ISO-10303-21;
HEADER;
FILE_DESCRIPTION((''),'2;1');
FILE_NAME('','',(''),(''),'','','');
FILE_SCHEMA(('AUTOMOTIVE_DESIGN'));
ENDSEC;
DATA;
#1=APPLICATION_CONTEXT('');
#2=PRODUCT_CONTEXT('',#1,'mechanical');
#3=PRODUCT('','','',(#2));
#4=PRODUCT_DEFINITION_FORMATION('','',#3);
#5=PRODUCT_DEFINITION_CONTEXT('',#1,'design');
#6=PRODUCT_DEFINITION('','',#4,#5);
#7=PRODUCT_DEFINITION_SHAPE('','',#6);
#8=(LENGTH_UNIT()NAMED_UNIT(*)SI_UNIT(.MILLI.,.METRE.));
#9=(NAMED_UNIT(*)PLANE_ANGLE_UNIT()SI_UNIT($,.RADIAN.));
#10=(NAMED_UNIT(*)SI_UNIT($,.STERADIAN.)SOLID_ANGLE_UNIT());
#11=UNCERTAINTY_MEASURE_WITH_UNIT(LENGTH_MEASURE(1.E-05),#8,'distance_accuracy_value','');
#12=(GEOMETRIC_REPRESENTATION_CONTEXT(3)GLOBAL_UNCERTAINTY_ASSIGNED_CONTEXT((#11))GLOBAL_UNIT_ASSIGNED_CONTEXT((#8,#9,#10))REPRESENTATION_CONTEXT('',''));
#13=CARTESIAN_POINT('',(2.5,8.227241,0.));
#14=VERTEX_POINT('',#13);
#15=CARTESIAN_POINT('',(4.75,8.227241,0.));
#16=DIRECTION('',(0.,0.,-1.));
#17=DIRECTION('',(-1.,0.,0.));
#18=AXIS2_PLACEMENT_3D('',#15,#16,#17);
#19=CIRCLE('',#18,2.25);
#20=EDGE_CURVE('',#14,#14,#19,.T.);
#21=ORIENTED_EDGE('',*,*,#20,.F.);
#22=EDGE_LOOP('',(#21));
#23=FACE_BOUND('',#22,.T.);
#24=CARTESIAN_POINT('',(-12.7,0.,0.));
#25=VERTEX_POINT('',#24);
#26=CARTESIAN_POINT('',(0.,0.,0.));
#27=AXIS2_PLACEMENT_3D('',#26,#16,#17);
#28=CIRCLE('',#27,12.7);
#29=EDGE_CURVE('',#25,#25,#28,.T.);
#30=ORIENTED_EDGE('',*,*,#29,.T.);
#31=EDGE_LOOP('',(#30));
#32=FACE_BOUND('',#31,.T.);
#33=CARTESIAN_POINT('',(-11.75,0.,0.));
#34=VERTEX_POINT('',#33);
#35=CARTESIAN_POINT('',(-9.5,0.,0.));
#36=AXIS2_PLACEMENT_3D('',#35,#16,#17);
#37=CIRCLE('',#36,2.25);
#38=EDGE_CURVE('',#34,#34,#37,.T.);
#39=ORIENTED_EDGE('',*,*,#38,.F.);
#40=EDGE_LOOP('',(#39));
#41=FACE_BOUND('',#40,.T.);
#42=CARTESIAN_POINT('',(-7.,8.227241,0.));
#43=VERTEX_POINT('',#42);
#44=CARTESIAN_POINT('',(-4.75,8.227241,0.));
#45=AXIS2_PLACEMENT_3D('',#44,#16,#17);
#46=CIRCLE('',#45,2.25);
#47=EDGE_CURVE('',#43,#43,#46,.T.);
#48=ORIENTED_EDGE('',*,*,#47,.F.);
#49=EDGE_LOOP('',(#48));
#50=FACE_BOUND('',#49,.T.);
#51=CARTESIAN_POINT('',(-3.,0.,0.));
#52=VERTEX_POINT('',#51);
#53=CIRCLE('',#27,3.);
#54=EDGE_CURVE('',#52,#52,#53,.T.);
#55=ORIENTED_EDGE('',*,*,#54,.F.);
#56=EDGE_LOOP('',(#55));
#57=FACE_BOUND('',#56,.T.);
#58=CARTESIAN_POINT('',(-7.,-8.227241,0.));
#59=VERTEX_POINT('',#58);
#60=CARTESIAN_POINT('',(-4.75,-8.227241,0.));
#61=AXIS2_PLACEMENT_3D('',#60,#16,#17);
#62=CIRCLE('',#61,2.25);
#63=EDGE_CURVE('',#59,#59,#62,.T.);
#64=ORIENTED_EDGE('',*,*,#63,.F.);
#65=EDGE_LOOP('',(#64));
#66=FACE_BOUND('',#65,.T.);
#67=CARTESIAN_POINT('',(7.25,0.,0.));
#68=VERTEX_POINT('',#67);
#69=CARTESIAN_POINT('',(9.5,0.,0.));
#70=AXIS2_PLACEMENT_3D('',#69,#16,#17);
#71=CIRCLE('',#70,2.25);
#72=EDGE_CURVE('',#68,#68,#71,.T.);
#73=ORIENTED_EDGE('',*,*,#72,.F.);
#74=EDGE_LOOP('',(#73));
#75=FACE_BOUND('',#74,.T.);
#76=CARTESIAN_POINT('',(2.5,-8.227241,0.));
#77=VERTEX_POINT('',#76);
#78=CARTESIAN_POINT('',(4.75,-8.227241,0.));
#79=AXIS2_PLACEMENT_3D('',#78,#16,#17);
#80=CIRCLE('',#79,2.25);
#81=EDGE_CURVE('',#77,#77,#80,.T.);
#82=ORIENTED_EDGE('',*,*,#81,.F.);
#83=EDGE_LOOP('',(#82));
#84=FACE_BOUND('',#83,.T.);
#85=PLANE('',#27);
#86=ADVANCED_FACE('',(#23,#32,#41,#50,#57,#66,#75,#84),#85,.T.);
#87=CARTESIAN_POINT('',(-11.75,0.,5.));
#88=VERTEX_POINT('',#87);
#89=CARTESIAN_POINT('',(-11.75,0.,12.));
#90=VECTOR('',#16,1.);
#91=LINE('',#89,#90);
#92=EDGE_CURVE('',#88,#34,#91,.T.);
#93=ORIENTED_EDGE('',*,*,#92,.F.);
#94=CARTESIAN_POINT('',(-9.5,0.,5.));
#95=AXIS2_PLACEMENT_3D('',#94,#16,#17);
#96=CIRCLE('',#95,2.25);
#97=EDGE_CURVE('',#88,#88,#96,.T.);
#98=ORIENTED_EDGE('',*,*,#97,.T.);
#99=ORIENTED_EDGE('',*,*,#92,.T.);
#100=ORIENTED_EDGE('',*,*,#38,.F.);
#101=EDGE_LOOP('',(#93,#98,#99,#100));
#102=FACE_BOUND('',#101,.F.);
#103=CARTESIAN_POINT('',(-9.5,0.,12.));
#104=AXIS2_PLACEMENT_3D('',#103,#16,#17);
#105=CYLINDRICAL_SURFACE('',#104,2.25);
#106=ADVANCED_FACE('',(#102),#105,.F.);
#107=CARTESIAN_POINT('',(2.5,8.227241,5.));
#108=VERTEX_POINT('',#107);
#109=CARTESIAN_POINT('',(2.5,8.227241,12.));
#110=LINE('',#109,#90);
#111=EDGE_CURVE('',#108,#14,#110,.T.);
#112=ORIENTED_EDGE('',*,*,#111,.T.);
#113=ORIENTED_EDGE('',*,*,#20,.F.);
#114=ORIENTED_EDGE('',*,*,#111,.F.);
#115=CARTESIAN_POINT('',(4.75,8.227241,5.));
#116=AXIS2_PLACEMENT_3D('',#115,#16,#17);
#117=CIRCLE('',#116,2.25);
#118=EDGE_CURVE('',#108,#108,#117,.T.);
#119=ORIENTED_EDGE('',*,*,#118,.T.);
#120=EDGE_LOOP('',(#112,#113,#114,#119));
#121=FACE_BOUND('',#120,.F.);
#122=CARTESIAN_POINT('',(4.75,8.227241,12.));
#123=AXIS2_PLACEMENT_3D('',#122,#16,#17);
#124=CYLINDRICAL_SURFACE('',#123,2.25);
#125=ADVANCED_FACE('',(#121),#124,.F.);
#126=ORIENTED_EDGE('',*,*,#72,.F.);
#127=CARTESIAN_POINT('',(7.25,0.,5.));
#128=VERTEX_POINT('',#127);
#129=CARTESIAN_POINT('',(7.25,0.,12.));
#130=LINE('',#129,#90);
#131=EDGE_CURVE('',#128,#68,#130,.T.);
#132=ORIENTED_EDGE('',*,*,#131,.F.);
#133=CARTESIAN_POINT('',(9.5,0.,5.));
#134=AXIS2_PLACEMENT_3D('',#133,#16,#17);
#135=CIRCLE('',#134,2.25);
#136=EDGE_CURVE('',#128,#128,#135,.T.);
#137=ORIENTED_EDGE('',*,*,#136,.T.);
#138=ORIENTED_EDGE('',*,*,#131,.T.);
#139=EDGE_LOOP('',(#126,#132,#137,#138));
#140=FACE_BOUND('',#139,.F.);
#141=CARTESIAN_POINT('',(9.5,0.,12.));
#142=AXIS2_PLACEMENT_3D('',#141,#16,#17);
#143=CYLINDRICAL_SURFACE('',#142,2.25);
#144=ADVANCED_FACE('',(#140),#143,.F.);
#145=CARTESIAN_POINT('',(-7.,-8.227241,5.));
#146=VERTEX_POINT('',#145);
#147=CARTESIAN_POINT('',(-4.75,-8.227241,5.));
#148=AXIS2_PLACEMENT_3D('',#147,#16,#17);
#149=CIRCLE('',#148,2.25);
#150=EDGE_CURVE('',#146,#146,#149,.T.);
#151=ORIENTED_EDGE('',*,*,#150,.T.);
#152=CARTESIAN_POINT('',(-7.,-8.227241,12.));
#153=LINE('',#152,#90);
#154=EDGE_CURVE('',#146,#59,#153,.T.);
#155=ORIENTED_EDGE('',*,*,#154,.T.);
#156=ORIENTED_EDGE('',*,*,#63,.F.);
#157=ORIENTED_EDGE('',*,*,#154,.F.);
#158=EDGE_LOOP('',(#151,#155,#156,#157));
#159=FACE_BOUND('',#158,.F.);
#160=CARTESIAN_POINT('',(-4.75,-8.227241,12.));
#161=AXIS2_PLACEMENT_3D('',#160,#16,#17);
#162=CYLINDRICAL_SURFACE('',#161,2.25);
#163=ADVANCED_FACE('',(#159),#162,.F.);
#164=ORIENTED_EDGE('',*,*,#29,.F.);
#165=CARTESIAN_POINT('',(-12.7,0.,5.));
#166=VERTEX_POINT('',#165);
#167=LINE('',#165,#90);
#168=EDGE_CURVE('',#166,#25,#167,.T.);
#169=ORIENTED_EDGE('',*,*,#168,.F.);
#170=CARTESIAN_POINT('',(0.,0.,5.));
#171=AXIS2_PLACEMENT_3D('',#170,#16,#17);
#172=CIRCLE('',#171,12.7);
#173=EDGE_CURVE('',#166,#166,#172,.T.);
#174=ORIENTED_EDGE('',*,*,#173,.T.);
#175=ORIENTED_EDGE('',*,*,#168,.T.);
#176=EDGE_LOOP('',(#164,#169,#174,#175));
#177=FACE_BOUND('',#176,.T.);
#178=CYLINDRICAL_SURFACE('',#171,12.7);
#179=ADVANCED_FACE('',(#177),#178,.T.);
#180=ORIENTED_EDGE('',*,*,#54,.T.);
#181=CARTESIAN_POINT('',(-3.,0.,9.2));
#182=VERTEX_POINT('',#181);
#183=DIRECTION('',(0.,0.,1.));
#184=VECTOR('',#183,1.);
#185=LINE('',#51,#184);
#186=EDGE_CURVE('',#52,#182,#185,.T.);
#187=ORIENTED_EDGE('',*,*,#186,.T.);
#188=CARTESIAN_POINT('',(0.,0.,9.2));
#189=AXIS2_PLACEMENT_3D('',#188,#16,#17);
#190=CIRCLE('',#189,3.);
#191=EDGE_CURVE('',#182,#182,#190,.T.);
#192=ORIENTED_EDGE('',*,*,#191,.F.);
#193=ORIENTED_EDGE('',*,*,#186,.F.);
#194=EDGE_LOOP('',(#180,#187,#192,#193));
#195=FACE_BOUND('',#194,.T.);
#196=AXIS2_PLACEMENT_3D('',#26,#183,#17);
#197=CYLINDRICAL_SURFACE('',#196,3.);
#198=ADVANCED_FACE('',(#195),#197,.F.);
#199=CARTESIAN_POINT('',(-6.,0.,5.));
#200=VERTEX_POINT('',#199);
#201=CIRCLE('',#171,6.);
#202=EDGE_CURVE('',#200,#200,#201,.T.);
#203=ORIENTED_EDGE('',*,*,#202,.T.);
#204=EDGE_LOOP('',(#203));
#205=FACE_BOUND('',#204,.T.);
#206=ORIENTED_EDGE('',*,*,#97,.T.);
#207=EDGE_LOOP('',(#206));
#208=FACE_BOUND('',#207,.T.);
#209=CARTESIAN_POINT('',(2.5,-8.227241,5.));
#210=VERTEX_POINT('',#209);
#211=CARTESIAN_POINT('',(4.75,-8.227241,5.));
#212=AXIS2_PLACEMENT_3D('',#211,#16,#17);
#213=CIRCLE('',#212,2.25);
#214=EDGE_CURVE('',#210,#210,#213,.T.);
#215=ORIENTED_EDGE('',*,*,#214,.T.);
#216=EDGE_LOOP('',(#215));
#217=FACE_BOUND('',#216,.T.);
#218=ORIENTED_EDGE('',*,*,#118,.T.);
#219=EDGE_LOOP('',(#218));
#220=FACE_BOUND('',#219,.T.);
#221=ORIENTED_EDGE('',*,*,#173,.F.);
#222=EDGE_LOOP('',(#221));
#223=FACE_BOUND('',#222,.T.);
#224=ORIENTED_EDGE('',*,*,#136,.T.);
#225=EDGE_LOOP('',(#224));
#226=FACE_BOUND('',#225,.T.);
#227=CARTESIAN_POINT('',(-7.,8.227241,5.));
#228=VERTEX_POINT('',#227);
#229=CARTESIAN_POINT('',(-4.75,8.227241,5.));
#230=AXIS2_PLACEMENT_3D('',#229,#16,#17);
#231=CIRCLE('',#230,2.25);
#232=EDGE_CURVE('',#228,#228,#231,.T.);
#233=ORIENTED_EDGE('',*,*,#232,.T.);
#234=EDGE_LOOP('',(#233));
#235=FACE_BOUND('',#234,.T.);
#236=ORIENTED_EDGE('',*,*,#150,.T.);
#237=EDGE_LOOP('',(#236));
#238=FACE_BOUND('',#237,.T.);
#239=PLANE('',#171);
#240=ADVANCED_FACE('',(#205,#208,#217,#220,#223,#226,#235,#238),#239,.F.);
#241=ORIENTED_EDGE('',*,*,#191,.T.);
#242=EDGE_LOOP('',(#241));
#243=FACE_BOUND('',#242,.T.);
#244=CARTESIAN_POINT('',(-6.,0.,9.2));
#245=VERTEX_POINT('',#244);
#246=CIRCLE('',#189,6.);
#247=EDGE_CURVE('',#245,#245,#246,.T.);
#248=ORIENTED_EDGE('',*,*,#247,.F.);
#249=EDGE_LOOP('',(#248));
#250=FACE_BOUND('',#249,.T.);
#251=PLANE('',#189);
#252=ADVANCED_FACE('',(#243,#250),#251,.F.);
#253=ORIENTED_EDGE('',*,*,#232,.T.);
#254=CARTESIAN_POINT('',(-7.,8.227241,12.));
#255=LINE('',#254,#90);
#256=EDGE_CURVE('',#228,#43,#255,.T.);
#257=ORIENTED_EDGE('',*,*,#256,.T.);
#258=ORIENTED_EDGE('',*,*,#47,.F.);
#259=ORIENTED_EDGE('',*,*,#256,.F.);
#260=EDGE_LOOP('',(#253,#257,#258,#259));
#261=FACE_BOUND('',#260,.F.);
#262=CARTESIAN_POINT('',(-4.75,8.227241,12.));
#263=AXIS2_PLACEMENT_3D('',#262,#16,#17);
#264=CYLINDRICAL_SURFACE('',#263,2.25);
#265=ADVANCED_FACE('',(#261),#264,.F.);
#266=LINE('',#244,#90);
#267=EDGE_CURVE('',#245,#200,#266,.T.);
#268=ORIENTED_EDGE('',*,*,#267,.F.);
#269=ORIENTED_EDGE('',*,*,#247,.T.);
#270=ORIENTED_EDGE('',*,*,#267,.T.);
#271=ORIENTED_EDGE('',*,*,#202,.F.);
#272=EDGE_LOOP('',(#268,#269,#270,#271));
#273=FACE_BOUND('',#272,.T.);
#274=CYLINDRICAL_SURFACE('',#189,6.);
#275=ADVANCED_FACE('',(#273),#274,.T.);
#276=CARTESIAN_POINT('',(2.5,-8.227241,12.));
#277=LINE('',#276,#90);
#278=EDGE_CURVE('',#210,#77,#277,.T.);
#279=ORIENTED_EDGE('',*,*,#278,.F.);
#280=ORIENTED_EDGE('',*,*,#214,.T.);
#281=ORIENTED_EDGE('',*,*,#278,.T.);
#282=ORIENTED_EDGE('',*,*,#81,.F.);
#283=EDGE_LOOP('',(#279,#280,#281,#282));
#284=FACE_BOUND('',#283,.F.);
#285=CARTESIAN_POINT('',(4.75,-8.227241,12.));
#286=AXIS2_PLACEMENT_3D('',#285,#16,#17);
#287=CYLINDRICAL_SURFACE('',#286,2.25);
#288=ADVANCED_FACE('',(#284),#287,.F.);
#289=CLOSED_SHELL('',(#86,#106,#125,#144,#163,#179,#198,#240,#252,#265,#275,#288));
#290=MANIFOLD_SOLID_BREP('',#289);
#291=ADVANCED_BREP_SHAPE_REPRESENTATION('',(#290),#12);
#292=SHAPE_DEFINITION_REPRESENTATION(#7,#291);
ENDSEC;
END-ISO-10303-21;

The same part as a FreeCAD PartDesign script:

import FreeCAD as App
import Part
import Sketcher


def add_polygon(sketch, points):
    """Adds a closed chain of lines whose ends are joined by coincident constraints."""
    first, n = sketch.GeometryCount, len(points)
    for a, b in zip(points, points[1:] + points[:1]):
        sketch.addGeometry(Part.LineSegment(App.Vector(*a, 0), App.Vector(*b, 0)), False)
    for i in range(n):
        sketch.addConstraint(Sketcher.Constraint("Coincident", first + i, 2, first + (i + 1) % n, 1))

doc = App.newDocument("Part")
body = doc.addObject("PartDesign::Body", "Body")

sketch1 = body.newObject("Sketcher::SketchObject", "Sketch")
sketch1.AttachmentSupport = (doc.getObject("XZ_Plane"), [""])
sketch1.MapMode = "FlatFace"
add_polygon(sketch1, [(-12.7, 0), (-3, 0), (-3, 9.2), (-6, 9.2), (-6, 5), (-12.7, 5)])
sketch1.addConstraint(Sketcher.Constraint("Horizontal", 0))
sketch1.addConstraint(Sketcher.Constraint("Vertical", 1))
sketch1.addConstraint(Sketcher.Constraint("Horizontal", 2))
sketch1.addConstraint(Sketcher.Constraint("Vertical", 3))
sketch1.addConstraint(Sketcher.Constraint("Horizontal", 4))
sketch1.addConstraint(Sketcher.Constraint("Vertical", 5))
sketch1.addConstraint(Sketcher.Constraint("PointOnObject", 0, 2, -1))
sketch1.addConstraint(Sketcher.Constraint("DistanceX", 2, 2, 2, 1, 3.0))
sketch1.addConstraint(Sketcher.Constraint("DistanceY", 5, 2, 5, 1, 5.0))
sketch1.addConstraint(Sketcher.Constraint("DistanceX", 0, 1, 0, 2, 9.7))
sketch1.addConstraint(Sketcher.Constraint("DistanceY", 1, 1, 1, 2, 9.2))
sketch1.addConstraint(Sketcher.Constraint("DistanceX", 0, 2, -1, 1, 3.0))
revolution = body.newObject("PartDesign::Revolution", "Revolution")
revolution.Profile = sketch1
revolution.ReferenceAxis = (sketch1, ["V_Axis"])
revolution.Angle = 360

sketch2 = body.newObject("Sketcher::SketchObject", "Sketch001")
sketch2.AttachmentSupport = (doc.getObject("XY_Plane"), [""])
sketch2.MapMode = "FlatFace"
sketch2.AttachmentOffset = App.Placement(App.Vector(0, 0, 5), App.Rotation())
sketch2.addGeometry(Part.Circle(App.Vector(-4.8, 8.2, 0), App.Vector(0, 0, 1), 2.2), False)
sketch2.addGeometry(Part.Circle(App.Vector(-9.5, 0, 0), App.Vector(0, 0, 1), 2.2), False)
sketch2.addGeometry(Part.Circle(App.Vector(-4.8, -8.2, 0), App.Vector(0, 0, 1), 2.2), False)
sketch2.addGeometry(Part.Circle(App.Vector(4.8, -8.2, 0), App.Vector(0, 0, 1), 2.2), False)
sketch2.addGeometry(Part.Circle(App.Vector(9.5, 0, 0), App.Vector(0, 0, 1), 2.2), False)
sketch2.addGeometry(Part.Circle(App.Vector(4.8, 8.2, 0), App.Vector(0, 0, 1), 2.2), False)
sketch2.addConstraint(Sketcher.Constraint("Equal", 0, 1))
sketch2.addConstraint(Sketcher.Constraint("Equal", 1, 2))
sketch2.addConstraint(Sketcher.Constraint("Equal", 2, 3))
sketch2.addConstraint(Sketcher.Constraint("Equal", 3, 4))
sketch2.addConstraint(Sketcher.Constraint("Equal", 4, 5))
sketch2.addConstraint(Sketcher.Constraint("Symmetric", 0, 3, 3, 3, -1, 1))
sketch2.addConstraint(Sketcher.Constraint("Symmetric", 1, 3, 4, 3, -1, 1))
sketch2.addConstraint(Sketcher.Constraint("Symmetric", 2, 3, 5, 3, -1, 1))
sketch2.addConstraint(Sketcher.Constraint("Symmetric", 2, 3, 3, 3, -2))
sketch2.addConstraint(Sketcher.Constraint("PointOnObject", 1, 3, -1))
sketch2.addConstraint(Sketcher.Constraint("Diameter", 0, 4.5))
sketch2.addConstraint(Sketcher.Constraint("DistanceX", 1, 3, 4, 3, 19.0))
sketch2.addConstraint(Sketcher.Constraint("DistanceX", 2, 3, 3, 3, 9.5))
sketch2.addConstraint(Sketcher.Constraint("DistanceY", -1, 1, 0, 3, 8.227241))
doc.recompute()
hole = body.newObject("PartDesign::Hole", "Hole")
hole.Profile = sketch2
hole.ThreadType = "None"
hole.Diameter = 4.5
hole.DepthType = "Dimension"
hole.Depth = 7
hole.DrillPoint = "Angled"
hole.DrillPointAngle = 118

doc.recompute()
